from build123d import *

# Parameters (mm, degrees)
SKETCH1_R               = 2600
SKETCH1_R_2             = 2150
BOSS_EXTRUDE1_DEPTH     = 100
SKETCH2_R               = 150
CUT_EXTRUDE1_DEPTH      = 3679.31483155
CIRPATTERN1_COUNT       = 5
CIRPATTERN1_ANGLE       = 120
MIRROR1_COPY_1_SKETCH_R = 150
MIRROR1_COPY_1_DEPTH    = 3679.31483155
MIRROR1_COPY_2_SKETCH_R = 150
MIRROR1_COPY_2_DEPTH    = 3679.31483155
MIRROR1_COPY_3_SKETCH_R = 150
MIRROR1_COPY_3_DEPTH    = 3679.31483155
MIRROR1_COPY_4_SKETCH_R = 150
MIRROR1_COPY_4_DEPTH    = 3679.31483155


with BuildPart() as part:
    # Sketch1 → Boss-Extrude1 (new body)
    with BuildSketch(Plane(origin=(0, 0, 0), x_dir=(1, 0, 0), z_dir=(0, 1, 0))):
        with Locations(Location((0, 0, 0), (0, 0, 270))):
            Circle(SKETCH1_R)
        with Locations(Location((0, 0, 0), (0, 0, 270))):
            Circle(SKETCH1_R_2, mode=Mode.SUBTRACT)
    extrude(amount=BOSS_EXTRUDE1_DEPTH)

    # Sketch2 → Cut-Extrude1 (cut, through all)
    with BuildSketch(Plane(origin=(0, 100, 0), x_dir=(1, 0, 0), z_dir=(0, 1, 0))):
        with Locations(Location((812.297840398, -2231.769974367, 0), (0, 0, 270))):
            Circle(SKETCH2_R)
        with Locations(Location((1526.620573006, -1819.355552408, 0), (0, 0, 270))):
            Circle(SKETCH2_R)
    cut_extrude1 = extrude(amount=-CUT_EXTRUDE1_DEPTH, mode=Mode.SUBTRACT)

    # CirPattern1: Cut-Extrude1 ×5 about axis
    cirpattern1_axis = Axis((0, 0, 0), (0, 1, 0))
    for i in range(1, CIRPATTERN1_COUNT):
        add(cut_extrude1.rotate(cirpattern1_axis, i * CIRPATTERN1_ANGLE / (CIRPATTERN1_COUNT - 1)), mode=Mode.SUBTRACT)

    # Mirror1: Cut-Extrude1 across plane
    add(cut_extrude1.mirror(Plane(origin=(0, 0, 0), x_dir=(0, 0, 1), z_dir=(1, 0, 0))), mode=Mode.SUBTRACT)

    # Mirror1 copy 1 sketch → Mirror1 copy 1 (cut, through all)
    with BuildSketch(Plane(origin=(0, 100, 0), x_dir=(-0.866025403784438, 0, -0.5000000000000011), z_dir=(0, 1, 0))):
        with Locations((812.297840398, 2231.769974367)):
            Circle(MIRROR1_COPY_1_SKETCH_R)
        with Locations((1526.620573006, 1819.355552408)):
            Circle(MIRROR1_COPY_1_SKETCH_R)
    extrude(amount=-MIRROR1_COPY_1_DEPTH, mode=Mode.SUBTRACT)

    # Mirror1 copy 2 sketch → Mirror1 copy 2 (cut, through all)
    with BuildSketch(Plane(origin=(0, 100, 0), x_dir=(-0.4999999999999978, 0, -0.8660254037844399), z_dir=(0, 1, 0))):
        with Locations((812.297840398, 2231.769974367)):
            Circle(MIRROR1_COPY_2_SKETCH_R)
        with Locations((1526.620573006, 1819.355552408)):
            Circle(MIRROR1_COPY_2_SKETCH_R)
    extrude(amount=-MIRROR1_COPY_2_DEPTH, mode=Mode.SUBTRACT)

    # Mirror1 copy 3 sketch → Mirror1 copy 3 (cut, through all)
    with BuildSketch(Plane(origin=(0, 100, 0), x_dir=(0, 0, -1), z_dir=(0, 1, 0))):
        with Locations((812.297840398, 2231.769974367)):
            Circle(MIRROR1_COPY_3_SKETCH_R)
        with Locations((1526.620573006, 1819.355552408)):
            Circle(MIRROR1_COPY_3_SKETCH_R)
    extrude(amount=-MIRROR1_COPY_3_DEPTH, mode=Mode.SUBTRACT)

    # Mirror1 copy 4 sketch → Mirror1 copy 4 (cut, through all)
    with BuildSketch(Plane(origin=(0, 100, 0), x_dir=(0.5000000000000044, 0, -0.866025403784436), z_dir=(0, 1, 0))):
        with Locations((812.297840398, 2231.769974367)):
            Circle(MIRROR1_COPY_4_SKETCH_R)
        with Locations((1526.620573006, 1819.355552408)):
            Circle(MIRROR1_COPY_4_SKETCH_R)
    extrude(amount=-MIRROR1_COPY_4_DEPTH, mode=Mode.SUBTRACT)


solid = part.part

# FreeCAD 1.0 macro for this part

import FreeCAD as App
import Part
import Sketcher

V = App.Vector

doc = App.newDocument("Part")
body = doc.addObject("PartDesign::Body", "Body")

# Sketch on XZ plane
sketch1 = doc.addObject("Sketcher::SketchObject", "Sketch")
body.addObject(sketch1)
sketch1.AttachmentSupport = (doc.XZ_Plane, [""])
sketch1.MapMode = "FlatFace"
sketch1.addGeometry([
    Part.Circle(V(0, 0, 0), V(0, 0, 1), 2600),
    Part.Circle(V(0, 0, 0), V(0, 0, 1), 2150),
], False)
sketch1.addConstraint([
    Sketcher.Constraint("Coincident", 0, 3, -1, 1),
    Sketcher.Constraint("Coincident", 1, 3, -1, 1),
    Sketcher.Constraint("Diameter", 0, 5200.0),
    Sketcher.Constraint("Diameter", 1, 4300.0),
])
pad1 = doc.addObject("PartDesign::Pad", "Pad")
body.addObject(pad1)
pad1.Profile = sketch1
pad1.Length = 100
pad1.Reversed = True

# Sketch on XZ plane
sketch2 = doc.addObject("Sketcher::SketchObject", "Sketch001")
body.addObject(sketch2)
sketch2.AttachmentSupport = (doc.XZ_Plane, [""])
sketch2.MapMode = "FlatFace"
sketch2.AttachmentOffset = App.Placement(V(0, 0, -100), App.Rotation())
sketch2.addGeometry([
    Part.Circle(V(812.29784, 2231.769974, 0), V(0, 0, 1), 150),
    Part.Circle(V(1526.620573, 1819.355552, 0), V(0, 0, 1), 150),
], False)
sketch2.addConstraint([
    Sketcher.Constraint("Equal", 0, 1),
    Sketcher.Constraint("Diameter", 0, 300.0),
    Sketcher.Constraint("DistanceX", -1, 1, 0, 3, 812.29784),
    Sketcher.Constraint("DistanceY", 1, 3, 0, 3, 412.414422),
    Sketcher.Constraint("DistanceY", -1, 1, 0, 3, 2231.769974),
    Sketcher.Constraint("DistanceX", -1, 1, 1, 3, 1526.620573),
])
pocket1 = doc.addObject("PartDesign::Pocket", "Pocket")
body.addObject(pocket1)
pocket1.Profile = sketch2
pocket1.Type = "ThroughAll"
pocket1.Reversed = True
doc.recompute()

polarpattern = doc.addObject("PartDesign::PolarPattern", "PolarPattern")
body.addObject(polarpattern)
polarpattern.Originals = [pocket1]
polarpattern.Axis = (doc.Y_Axis, [""])
polarpattern.Angle = 120
polarpattern.Occurrences = 5
body.Tip = polarpattern
doc.recompute()

mirrored = doc.addObject("PartDesign::Mirrored", "Mirrored")
body.addObject(mirrored)
mirrored.Originals = [pocket1]
mirrored.MirrorPlane = (doc.YZ_Plane, [""])
body.Tip = mirrored

# Sketch on XZ plane
sketch3 = doc.addObject("Sketcher::SketchObject", "Sketch002")
body.addObject(sketch3)
sketch3.AttachmentSupport = (doc.XZ_Plane, [""])
sketch3.MapMode = "FlatFace"
sketch3.AttachmentOffset = App.Placement(V(0, 0, -100), App.Rotation())
sketch3.addGeometry([
    Part.Circle(V(-1819.355553, 1526.620573, 0), V(0, 0, 1), 150),
    Part.Circle(V(-2231.769975, 812.297841, 0), V(0, 0, 1), 150),
], False)
sketch3.addConstraint([
    Sketcher.Constraint("Equal", 0, 1),
    Sketcher.Constraint("Diameter", 0, 300.0),
    Sketcher.Constraint("DistanceY", -1, 1, 1, 3, 812.297841),
    Sketcher.Constraint("DistanceX", 0, 3, -1, 1, 1819.355553),
    Sketcher.Constraint("DistanceY", -1, 1, 0, 3, 1526.620573),
    Sketcher.Constraint("DistanceX", 1, 3, -1, 1, 2231.769975),
])
pocket2 = doc.addObject("PartDesign::Pocket", "Pocket001")
body.addObject(pocket2)
pocket2.Profile = sketch3
pocket2.Type = "ThroughAll"
pocket2.Reversed = True

# Sketch on XZ plane
sketch4 = doc.addObject("Sketcher::SketchObject", "Sketch003")
body.addObject(sketch4)
sketch4.AttachmentSupport = (doc.XZ_Plane, [""])
sketch4.MapMode = "FlatFace"
sketch4.AttachmentOffset = App.Placement(V(0, 0, -100), App.Rotation())
sketch4.addGeometry([
    Part.Circle(V(-2338.918414, 412.414422, 0), V(0, 0, 1), 150),
    Part.Circle(V(-2338.918414, -412.414422, 0), V(0, 0, 1), 150),
], False)
sketch4.addConstraint([
    Sketcher.Constraint("Equal", 0, 1),
    Sketcher.Constraint("Symmetric", 0, 3, 1, 3, -1),
    Sketcher.Constraint("Diameter", 0, 300.0),
    Sketcher.Constraint("DistanceY", -1, 1, 0, 3, 412.414422),
    Sketcher.Constraint("DistanceX", 0, 3, -1, 1, 2338.918414),
])
pocket3 = doc.addObject("PartDesign::Pocket", "Pocket002")
body.addObject(pocket3)
pocket3.Profile = sketch4
pocket3.Type = "ThroughAll"
pocket3.Reversed = True

# Sketch on XZ plane
sketch5 = doc.addObject("Sketcher::SketchObject", "Sketch004")
body.addObject(sketch5)
sketch5.AttachmentSupport = (doc.XZ_Plane, [""])
sketch5.MapMode = "FlatFace"
sketch5.AttachmentOffset = App.Placement(V(0, 0, -100), App.Rotation())
sketch5.addGeometry([
    Part.Circle(V(-2231.769974, -812.29784, 0), V(0, 0, 1), 150),
    Part.Circle(V(-1819.355552, -1526.620573, 0), V(0, 0, 1), 150),
], False)
sketch5.addConstraint([
    Sketcher.Constraint("Equal", 0, 1),
    Sketcher.Constraint("Diameter", 0, 300.0),
    Sketcher.Constraint("DistanceY", 0, 3, -1, 1, 812.29784),
    Sketcher.Constraint("DistanceX", 0, 3, 1, 3, 412.414422),
    Sketcher.Constraint("DistanceX", 0, 3, -1, 1, 2231.769974),
    Sketcher.Constraint("DistanceY", 1, 3, -1, 1, 1526.620573),
])
pocket4 = doc.addObject("PartDesign::Pocket", "Pocket003")
body.addObject(pocket4)
pocket4.Profile = sketch5
pocket4.Type = "ThroughAll"
pocket4.Reversed = True

# Sketch on XZ plane
sketch6 = doc.addObject("Sketcher::SketchObject", "Sketch005")
body.addObject(sketch6)
sketch6.AttachmentSupport = (doc.XZ_Plane, [""])
sketch6.MapMode = "FlatFace"
sketch6.AttachmentOffset = App.Placement(V(0, 0, -100), App.Rotation())
sketch6.addGeometry([
    Part.Circle(V(-1526.620573, -1819.355553, 0), V(0, 0, 1), 150),
    Part.Circle(V(-812.297841, -2231.769975, 0), V(0, 0, 1), 150),
], False)
sketch6.addConstraint([
    Sketcher.Constraint("Equal", 0, 1),
    Sketcher.Constraint("Diameter", 0, 300.0),
    Sketcher.Constraint("DistanceX", 1, 3, -1, 1, 812.297841),
    Sketcher.Constraint("DistanceX", 0, 3, -1, 1, 1526.620573),
    Sketcher.Constraint("DistanceY", 0, 3, -1, 1, 1819.355553),
    Sketcher.Constraint("DistanceY", 1, 3, -1, 1, 2231.769975),
])
pocket5 = doc.addObject("PartDesign::Pocket", "Pocket004")
body.addObject(pocket5)
pocket5.Profile = sketch6
pocket5.Type = "ThroughAll"
pocket5.Reversed = True

doc.recompute()
